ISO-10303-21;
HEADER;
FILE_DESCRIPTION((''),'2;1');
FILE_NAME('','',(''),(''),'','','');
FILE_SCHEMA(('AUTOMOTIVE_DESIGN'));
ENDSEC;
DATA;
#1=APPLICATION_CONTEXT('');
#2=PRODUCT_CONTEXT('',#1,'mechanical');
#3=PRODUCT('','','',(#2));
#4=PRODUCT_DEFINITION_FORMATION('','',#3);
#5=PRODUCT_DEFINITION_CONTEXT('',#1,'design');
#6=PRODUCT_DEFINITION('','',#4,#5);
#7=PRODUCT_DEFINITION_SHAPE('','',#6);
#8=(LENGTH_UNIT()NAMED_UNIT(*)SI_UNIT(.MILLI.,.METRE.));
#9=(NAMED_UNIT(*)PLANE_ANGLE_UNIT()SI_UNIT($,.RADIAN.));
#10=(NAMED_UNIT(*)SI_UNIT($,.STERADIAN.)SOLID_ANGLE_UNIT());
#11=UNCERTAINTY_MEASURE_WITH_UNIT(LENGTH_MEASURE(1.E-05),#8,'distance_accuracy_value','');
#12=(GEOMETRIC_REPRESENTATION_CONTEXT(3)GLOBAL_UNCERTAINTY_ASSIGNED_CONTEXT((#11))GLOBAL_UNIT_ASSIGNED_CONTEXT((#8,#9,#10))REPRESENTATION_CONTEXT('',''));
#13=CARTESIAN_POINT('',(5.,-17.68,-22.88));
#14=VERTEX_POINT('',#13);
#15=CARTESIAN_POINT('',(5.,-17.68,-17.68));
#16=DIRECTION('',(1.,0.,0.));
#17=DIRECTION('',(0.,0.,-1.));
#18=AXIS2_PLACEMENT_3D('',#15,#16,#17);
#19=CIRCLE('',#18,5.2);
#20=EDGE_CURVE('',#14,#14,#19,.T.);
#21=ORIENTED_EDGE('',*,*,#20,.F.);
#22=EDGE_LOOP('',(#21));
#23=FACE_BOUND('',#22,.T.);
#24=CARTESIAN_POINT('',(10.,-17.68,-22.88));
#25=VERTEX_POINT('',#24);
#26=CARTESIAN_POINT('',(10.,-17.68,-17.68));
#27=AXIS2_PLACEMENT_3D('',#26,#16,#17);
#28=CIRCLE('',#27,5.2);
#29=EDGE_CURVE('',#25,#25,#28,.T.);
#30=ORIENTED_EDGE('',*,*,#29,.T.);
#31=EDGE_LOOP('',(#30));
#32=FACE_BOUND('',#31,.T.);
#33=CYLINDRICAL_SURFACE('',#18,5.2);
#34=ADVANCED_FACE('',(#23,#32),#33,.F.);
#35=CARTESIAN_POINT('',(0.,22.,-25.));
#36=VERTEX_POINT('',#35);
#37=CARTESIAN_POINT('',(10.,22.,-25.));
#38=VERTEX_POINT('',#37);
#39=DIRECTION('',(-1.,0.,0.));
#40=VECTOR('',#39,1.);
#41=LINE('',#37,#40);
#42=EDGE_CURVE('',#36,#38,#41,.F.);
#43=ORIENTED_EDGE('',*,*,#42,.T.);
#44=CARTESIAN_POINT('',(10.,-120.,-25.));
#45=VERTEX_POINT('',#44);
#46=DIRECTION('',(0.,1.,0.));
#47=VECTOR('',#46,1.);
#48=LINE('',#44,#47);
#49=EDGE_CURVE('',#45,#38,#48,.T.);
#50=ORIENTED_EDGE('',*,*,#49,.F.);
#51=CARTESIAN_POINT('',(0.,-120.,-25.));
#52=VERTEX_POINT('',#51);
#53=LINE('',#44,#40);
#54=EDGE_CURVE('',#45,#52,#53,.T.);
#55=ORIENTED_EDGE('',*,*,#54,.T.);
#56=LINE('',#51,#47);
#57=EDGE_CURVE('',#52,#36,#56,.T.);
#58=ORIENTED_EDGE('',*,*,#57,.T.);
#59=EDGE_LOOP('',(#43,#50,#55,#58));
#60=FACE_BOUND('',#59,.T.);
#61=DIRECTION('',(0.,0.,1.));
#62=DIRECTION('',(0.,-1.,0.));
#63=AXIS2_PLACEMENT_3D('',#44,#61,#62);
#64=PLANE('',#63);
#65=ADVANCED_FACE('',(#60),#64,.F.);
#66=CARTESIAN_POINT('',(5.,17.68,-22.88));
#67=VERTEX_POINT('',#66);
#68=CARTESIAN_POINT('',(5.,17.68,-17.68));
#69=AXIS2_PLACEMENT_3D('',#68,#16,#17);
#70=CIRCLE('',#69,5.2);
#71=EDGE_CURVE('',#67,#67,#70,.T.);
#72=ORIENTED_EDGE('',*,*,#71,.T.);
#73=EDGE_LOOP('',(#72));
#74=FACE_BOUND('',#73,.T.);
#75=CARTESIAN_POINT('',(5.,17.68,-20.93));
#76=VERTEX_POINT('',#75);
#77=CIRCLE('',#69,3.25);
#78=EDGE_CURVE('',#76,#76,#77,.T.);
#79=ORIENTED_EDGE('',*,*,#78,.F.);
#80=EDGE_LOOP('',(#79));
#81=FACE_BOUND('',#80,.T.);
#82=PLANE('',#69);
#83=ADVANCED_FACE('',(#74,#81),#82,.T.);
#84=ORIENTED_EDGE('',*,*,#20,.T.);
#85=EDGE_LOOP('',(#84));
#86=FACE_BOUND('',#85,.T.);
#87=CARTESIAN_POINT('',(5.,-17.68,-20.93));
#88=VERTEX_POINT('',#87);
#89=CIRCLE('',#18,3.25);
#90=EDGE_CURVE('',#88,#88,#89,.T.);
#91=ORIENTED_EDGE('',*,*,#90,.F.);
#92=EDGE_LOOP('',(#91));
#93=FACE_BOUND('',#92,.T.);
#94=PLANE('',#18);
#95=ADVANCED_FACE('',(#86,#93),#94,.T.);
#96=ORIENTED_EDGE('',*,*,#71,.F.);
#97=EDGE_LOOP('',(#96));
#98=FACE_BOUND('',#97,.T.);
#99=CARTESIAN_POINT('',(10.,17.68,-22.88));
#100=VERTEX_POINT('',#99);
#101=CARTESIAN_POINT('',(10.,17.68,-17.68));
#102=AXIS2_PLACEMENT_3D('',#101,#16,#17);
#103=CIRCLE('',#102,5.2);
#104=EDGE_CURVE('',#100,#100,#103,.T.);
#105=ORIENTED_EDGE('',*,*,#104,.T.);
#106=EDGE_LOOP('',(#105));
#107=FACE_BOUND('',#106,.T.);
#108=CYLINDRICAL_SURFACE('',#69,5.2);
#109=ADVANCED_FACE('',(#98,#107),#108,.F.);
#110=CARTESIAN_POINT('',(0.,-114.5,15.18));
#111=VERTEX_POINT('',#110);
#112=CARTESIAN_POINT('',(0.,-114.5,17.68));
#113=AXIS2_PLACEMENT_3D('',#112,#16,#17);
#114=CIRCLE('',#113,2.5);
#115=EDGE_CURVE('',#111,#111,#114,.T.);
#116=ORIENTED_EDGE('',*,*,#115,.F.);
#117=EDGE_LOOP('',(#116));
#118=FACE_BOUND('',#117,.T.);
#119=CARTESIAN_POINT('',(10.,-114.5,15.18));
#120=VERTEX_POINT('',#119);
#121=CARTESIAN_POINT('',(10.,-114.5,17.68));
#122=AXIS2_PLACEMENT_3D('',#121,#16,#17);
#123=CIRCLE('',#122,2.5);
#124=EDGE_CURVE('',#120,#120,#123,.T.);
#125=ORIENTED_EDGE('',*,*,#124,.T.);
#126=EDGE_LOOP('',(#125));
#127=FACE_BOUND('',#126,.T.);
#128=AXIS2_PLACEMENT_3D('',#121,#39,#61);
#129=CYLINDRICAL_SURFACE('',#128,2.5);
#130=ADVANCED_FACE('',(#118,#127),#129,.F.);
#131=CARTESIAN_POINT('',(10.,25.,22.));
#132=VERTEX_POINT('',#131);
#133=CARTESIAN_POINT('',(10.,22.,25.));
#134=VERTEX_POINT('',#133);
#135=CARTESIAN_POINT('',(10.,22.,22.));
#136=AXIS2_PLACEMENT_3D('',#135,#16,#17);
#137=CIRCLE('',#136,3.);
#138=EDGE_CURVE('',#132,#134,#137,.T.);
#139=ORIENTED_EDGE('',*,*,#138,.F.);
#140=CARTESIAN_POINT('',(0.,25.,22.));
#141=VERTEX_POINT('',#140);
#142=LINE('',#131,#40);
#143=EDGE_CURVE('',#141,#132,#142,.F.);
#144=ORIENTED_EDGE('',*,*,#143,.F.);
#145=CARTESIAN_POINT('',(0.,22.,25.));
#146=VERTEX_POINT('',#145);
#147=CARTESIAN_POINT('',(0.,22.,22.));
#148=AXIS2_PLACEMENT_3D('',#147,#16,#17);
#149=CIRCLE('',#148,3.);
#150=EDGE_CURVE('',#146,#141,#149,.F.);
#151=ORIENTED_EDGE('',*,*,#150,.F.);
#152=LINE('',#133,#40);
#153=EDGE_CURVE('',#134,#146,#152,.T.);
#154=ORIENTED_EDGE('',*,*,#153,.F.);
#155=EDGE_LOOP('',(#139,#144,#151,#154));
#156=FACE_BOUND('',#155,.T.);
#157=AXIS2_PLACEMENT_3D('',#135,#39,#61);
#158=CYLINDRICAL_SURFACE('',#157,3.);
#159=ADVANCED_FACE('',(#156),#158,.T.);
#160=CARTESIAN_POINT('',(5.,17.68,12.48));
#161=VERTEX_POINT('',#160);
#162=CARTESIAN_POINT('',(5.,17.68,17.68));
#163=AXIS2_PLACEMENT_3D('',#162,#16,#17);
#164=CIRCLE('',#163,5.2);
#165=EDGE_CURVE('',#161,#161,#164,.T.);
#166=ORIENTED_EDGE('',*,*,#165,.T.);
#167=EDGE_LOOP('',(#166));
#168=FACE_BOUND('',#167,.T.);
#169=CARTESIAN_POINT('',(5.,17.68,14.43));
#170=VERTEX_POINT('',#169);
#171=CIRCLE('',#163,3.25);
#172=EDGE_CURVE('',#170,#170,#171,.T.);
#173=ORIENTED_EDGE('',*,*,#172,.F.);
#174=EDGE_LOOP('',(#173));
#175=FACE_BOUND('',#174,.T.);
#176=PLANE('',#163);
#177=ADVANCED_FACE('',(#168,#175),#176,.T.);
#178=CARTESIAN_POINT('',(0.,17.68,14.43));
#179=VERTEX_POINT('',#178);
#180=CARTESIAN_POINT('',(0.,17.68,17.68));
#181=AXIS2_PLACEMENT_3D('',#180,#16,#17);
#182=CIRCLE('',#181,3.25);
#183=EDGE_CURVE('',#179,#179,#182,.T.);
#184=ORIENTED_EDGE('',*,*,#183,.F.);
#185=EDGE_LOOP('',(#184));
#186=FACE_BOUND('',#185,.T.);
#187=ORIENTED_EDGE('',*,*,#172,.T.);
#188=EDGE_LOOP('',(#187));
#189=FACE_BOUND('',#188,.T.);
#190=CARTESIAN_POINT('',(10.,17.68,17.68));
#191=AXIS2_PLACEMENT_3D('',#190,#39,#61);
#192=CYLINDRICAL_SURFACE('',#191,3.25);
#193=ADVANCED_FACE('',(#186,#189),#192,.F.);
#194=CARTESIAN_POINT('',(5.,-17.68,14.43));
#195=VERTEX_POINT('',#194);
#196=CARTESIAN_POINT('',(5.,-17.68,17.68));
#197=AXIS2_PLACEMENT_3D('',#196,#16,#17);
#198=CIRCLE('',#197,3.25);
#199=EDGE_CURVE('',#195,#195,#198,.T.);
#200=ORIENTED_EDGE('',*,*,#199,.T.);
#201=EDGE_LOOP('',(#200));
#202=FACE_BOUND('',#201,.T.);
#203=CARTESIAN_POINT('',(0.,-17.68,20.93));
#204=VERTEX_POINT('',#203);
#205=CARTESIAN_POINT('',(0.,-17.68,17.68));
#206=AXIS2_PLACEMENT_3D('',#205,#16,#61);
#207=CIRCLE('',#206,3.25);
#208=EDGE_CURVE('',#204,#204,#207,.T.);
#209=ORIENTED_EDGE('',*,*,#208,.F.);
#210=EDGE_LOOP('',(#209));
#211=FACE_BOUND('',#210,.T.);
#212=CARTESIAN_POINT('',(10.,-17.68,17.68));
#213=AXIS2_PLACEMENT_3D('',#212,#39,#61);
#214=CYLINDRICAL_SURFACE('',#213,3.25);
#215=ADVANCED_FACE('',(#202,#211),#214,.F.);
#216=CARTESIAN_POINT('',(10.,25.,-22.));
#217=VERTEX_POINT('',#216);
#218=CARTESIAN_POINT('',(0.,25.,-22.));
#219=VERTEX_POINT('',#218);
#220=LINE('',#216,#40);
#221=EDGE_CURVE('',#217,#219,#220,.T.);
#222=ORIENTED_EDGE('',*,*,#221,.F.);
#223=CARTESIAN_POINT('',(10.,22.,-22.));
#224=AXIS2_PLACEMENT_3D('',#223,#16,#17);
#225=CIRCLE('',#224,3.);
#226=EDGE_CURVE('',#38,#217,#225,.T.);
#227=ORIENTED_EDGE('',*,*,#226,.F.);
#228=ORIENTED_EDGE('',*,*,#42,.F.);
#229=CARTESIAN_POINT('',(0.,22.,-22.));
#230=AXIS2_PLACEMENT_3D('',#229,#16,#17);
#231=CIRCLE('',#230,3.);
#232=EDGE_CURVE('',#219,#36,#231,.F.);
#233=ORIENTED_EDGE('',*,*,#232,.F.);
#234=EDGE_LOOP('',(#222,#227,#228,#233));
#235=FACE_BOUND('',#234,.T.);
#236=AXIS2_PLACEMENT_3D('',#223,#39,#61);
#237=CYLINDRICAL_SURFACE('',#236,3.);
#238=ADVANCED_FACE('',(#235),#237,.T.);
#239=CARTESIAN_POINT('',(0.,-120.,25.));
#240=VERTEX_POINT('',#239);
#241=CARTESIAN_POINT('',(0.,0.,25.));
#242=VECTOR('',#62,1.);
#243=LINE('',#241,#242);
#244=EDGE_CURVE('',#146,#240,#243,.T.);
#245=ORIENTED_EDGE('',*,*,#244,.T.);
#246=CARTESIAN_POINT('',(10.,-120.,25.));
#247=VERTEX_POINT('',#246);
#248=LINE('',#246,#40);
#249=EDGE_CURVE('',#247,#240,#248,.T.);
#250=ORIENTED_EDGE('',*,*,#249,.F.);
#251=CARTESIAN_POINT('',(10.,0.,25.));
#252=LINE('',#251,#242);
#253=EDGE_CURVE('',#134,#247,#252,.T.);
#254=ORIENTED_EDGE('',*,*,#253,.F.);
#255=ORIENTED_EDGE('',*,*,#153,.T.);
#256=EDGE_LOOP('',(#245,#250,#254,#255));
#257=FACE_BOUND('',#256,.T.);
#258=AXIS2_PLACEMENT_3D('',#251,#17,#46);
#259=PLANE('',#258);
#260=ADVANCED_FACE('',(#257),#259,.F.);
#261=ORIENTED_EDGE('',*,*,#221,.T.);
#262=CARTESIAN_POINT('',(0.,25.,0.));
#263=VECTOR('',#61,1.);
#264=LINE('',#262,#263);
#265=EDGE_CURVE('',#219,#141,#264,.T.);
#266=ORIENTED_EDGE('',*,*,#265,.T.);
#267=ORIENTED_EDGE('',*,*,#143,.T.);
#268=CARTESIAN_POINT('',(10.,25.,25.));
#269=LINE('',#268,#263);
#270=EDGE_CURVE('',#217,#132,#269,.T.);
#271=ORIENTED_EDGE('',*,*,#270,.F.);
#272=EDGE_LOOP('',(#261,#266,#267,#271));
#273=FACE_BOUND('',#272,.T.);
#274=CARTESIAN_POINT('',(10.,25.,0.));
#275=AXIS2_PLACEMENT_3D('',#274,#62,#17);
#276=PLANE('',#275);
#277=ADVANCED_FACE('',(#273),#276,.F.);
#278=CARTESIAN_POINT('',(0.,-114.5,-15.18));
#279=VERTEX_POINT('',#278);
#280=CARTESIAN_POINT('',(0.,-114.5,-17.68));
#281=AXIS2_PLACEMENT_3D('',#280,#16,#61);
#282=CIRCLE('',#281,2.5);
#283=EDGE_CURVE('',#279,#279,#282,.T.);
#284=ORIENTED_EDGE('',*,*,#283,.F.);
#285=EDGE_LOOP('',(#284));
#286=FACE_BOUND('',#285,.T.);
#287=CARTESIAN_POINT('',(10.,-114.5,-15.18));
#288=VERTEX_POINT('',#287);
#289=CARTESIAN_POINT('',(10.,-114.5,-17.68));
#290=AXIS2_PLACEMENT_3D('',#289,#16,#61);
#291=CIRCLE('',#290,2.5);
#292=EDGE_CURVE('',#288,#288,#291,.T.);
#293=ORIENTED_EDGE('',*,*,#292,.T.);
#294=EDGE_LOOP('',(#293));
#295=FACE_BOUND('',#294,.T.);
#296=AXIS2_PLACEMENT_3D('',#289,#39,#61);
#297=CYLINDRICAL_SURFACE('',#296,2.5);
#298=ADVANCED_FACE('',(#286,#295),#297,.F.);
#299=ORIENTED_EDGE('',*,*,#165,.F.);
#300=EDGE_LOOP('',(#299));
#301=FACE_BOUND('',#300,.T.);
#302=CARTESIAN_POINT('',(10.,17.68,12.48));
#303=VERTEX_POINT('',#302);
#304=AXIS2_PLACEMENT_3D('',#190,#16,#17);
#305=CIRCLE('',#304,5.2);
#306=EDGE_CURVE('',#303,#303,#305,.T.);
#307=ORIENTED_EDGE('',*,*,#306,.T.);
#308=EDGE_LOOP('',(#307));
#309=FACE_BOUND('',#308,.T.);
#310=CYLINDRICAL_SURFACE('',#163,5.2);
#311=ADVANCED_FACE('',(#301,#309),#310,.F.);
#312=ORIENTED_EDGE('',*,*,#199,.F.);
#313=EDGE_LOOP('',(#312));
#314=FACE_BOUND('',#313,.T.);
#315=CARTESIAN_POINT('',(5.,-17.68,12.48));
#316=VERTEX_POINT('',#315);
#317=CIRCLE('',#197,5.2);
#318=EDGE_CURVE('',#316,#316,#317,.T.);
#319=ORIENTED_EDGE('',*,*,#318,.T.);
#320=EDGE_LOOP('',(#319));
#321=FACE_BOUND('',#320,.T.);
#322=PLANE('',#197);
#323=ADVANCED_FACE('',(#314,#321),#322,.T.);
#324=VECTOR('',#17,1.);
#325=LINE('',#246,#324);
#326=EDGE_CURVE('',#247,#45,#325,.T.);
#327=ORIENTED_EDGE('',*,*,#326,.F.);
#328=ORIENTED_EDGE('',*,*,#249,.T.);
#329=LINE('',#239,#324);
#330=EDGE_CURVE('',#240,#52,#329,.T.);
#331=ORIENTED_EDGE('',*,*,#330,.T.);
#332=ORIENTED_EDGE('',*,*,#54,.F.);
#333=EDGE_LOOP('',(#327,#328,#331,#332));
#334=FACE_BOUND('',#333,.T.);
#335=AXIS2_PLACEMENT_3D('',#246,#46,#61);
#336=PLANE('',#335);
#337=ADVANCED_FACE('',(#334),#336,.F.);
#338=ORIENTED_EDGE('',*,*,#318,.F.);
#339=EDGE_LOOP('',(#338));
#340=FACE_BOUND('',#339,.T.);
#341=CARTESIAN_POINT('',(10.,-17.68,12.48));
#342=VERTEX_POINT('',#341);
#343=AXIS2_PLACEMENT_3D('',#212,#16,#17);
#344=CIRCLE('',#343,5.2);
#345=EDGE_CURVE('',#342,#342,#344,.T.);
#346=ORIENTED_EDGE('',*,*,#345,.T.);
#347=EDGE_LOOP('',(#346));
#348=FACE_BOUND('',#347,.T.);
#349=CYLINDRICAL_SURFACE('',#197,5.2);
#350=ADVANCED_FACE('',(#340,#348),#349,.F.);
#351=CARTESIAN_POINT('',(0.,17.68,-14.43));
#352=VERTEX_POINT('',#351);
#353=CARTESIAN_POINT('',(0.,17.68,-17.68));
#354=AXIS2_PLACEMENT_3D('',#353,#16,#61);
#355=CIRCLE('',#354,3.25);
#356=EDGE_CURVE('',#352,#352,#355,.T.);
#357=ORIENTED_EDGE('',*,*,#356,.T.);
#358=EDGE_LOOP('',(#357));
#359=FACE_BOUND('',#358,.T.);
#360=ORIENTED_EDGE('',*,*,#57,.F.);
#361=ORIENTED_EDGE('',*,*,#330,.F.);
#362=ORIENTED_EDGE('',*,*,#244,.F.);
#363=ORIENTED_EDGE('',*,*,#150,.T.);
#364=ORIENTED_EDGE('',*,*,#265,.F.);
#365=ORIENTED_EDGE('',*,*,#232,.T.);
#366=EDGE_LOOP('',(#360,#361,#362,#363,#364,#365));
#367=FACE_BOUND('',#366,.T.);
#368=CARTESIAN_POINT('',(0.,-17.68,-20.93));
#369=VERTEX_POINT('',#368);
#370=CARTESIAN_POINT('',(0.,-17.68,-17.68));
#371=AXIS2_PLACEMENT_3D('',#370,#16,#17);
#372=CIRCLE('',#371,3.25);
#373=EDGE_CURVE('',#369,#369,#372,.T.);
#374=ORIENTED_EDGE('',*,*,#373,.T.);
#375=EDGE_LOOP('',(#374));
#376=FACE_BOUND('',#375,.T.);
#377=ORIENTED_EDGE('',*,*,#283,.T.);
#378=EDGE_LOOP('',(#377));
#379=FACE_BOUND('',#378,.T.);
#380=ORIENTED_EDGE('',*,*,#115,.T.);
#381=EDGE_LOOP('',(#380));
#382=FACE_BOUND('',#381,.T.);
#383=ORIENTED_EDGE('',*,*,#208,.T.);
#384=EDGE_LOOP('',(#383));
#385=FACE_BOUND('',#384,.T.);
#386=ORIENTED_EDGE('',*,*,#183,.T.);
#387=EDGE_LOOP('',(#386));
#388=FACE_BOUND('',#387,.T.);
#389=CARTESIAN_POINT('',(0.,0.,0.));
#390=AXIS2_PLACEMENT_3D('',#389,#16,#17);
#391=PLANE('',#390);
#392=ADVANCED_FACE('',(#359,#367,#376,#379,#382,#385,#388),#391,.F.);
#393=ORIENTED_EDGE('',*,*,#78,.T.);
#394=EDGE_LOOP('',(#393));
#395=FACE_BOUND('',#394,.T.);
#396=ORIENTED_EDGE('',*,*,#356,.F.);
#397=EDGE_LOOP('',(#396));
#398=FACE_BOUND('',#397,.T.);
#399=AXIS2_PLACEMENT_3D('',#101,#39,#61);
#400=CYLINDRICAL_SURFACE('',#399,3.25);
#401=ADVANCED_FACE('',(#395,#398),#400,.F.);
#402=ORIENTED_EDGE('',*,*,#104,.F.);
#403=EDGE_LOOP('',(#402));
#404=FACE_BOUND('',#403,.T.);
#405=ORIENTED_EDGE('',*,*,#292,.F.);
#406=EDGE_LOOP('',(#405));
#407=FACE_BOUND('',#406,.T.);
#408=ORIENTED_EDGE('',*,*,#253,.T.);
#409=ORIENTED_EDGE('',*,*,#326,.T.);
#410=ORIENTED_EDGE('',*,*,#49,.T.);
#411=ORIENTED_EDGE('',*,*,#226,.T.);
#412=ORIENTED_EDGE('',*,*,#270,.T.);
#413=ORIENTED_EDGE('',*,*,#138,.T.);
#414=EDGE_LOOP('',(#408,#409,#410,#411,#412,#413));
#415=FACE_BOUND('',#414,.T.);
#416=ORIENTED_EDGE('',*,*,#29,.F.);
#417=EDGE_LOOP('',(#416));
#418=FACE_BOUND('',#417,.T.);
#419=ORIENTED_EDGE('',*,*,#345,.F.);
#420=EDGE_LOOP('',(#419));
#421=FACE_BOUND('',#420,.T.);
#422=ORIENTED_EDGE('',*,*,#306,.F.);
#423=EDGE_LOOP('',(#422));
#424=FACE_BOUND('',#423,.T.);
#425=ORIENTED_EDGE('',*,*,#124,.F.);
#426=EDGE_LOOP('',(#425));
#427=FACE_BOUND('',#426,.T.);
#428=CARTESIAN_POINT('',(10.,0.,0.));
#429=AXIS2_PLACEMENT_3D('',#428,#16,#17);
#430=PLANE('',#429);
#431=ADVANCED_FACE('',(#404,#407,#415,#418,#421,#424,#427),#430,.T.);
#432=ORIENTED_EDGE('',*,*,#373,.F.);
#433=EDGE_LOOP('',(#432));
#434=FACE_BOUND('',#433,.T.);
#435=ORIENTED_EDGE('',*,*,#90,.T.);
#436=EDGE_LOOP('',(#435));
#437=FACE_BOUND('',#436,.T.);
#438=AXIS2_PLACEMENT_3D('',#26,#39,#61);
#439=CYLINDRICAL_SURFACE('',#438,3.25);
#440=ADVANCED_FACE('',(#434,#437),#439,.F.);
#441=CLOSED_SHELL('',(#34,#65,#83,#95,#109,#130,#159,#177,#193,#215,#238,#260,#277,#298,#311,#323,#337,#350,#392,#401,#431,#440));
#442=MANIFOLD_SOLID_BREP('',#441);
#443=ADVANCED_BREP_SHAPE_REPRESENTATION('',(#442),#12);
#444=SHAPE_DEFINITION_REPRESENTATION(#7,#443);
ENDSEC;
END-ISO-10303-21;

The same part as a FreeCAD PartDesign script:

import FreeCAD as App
import Part
import Sketcher

V = App.Vector


def edges_at(feature, points):
    """Names of the edges that pass closest to the given points."""
    edges = feature.Shape.Edges
    near = lambda p: min(range(len(edges)), key=lambda i: edges[i].distToShape(Part.Vertex(*p))[0])
    return sorted({f"Edge{near(p) + 1}" for p in points})


def add_polygon(sketch, points):
    """Adds a closed chain of lines whose ends are joined by coincident constraints."""
    first, n = sketch.GeometryCount, len(points)
    for a, b in zip(points, points[1:] + points[:1]):
        sketch.addGeometry(Part.LineSegment(App.Vector(*a, 0), App.Vector(*b, 0)), False)
    for i in range(n):
        sketch.addConstraint(Sketcher.Constraint("Coincident", first + i, 2, first + (i + 1) % n, 1))

doc = App.newDocument("Part")
body = doc.addObject("PartDesign::Body", "Body")

sketch1 = body.newObject("Sketcher::SketchObject", "Sketch")
sketch1.AttachmentSupport = (doc.getObject("YZ_Plane"), [""])
sketch1.MapMode = "FlatFace"
add_polygon(sketch1, [(-120, 25), (-120, -25), (25, -25), (25, 25)])
sketch1.addGeometry(Part.Circle(V(-114.5, 17.7, 0), V(0, 0, 1), 2.5), False)
sketch1.addGeometry(Part.Circle(V(-114.5, -17.7, 0), V(0, 0, 1), 2.5), False)
sketch1.addGeometry(Part.Circle(V(-17.7, 17.7, 0), V(0, 0, 1), 3.2), False)
sketch1.addGeometry(Part.Circle(V(17.7, 17.7, 0), V(0, 0, 1), 3.2), False)
sketch1.addGeometry(Part.Circle(V(-17.7, -17.7, 0), V(0, 0, 1), 3.2), False)
sketch1.addGeometry(Part.Circle(V(17.7, -17.7, 0), V(0, 0, 1), 3.2), False)
sketch1.addConstraint([
    Sketcher.Constraint("Vertical", 0),
    Sketcher.Constraint("Horizontal", 1),
    Sketcher.Constraint("Vertical", 2),
    Sketcher.Constraint("Horizontal", 3),
    Sketcher.Constraint("Equal", 4, 5),
    Sketcher.Constraint("Equal", 6, 7),
    Sketcher.Constraint("Equal", 7, 8),
    Sketcher.Constraint("Equal", 8, 9),
    Sketcher.Constraint("Symmetric", 7, 3, 8, 3, -1, 1),
    Sketcher.Constraint("Symmetric", 6, 3, 9, 3, -1, 1),
    Sketcher.Constraint("Symmetric", 6, 3, 7, 3, -2),
    Sketcher.Constraint("Symmetric", 4, 3, 5, 3, -1),
    Sketcher.Constraint("Horizontal", 4, 3, 6, 3),
    Sketcher.Constraint("Diameter", 4, 5.0),
    Sketcher.Constraint("Diameter", 6, 6.5),
    Sketcher.Constraint("DistanceX", 1, 1, 1, 2, 145.0),
    Sketcher.Constraint("DistanceY", 0, 2, 0, 1, 50.0),
    Sketcher.Constraint("DistanceX", 0, 2, -1, 1, 120.0),
    Sketcher.Constraint("DistanceY", 0, 2, -1, 1, 25.0),
    Sketcher.Constraint("DistanceX", 4, 3, -1, 1, 114.5),
    Sketcher.Constraint("DistanceY", -1, 1, 4, 3, 17.68),
    Sketcher.Constraint("DistanceX", 6, 3, -1, 1, 17.68),
])
pad1 = body.newObject("PartDesign::Pad", "Pad")
pad1.Profile = sketch1
pad1.Length = 10

sketch2 = body.newObject("Sketcher::SketchObject", "Sketch001")
sketch2.AttachmentSupport = (doc.getObject("YZ_Plane"), [""])
sketch2.MapMode = "FlatFace"
sketch2.AttachmentOffset = App.Placement(V(0, 0, 10), App.Rotation())
sketch2.addGeometry([
    Part.Circle(V(18, -18, 0), V(0, 0, 1), 5),
    Part.Circle(V(18, 18, 0), V(0, 0, 1), 5),
    Part.Circle(V(-18, 18, 0), V(0, 0, 1), 5),
    Part.Circle(V(-18, -18, 0), V(0, 0, 1), 5),
], False)
sketch2.addConstraint([
    Sketcher.Constraint("Equal", 0, 1),
    Sketcher.Constraint("Equal", 1, 2),
    Sketcher.Constraint("Equal", 2, 3),
    Sketcher.Constraint("Symmetric", 0, 3, 2, 3, -1, 1),
    Sketcher.Constraint("Symmetric", 1, 3, 3, 3, -1, 1),
    Sketcher.Constraint("Symmetric", 1, 3, 2, 3, -2),
    Sketcher.Constraint("Diameter", 0, 10.4),
    Sketcher.Constraint("DistanceX", -1, 1, 0, 3, 17.68),
    Sketcher.Constraint("DistanceY", 0, 3, -1, 1, 17.68),
])
pocket1 = body.newObject("PartDesign::Pocket", "Pocket")
pocket1.Profile = sketch2
pocket1.Length = 5
doc.recompute()

fillet = body.newObject("PartDesign::Fillet", "Fillet")
fillet.Base = (pocket1, edges_at(pocket1, [(5, 25, -25), (5, 25, 25)]))
fillet.Radius = 3

doc.recompute()
